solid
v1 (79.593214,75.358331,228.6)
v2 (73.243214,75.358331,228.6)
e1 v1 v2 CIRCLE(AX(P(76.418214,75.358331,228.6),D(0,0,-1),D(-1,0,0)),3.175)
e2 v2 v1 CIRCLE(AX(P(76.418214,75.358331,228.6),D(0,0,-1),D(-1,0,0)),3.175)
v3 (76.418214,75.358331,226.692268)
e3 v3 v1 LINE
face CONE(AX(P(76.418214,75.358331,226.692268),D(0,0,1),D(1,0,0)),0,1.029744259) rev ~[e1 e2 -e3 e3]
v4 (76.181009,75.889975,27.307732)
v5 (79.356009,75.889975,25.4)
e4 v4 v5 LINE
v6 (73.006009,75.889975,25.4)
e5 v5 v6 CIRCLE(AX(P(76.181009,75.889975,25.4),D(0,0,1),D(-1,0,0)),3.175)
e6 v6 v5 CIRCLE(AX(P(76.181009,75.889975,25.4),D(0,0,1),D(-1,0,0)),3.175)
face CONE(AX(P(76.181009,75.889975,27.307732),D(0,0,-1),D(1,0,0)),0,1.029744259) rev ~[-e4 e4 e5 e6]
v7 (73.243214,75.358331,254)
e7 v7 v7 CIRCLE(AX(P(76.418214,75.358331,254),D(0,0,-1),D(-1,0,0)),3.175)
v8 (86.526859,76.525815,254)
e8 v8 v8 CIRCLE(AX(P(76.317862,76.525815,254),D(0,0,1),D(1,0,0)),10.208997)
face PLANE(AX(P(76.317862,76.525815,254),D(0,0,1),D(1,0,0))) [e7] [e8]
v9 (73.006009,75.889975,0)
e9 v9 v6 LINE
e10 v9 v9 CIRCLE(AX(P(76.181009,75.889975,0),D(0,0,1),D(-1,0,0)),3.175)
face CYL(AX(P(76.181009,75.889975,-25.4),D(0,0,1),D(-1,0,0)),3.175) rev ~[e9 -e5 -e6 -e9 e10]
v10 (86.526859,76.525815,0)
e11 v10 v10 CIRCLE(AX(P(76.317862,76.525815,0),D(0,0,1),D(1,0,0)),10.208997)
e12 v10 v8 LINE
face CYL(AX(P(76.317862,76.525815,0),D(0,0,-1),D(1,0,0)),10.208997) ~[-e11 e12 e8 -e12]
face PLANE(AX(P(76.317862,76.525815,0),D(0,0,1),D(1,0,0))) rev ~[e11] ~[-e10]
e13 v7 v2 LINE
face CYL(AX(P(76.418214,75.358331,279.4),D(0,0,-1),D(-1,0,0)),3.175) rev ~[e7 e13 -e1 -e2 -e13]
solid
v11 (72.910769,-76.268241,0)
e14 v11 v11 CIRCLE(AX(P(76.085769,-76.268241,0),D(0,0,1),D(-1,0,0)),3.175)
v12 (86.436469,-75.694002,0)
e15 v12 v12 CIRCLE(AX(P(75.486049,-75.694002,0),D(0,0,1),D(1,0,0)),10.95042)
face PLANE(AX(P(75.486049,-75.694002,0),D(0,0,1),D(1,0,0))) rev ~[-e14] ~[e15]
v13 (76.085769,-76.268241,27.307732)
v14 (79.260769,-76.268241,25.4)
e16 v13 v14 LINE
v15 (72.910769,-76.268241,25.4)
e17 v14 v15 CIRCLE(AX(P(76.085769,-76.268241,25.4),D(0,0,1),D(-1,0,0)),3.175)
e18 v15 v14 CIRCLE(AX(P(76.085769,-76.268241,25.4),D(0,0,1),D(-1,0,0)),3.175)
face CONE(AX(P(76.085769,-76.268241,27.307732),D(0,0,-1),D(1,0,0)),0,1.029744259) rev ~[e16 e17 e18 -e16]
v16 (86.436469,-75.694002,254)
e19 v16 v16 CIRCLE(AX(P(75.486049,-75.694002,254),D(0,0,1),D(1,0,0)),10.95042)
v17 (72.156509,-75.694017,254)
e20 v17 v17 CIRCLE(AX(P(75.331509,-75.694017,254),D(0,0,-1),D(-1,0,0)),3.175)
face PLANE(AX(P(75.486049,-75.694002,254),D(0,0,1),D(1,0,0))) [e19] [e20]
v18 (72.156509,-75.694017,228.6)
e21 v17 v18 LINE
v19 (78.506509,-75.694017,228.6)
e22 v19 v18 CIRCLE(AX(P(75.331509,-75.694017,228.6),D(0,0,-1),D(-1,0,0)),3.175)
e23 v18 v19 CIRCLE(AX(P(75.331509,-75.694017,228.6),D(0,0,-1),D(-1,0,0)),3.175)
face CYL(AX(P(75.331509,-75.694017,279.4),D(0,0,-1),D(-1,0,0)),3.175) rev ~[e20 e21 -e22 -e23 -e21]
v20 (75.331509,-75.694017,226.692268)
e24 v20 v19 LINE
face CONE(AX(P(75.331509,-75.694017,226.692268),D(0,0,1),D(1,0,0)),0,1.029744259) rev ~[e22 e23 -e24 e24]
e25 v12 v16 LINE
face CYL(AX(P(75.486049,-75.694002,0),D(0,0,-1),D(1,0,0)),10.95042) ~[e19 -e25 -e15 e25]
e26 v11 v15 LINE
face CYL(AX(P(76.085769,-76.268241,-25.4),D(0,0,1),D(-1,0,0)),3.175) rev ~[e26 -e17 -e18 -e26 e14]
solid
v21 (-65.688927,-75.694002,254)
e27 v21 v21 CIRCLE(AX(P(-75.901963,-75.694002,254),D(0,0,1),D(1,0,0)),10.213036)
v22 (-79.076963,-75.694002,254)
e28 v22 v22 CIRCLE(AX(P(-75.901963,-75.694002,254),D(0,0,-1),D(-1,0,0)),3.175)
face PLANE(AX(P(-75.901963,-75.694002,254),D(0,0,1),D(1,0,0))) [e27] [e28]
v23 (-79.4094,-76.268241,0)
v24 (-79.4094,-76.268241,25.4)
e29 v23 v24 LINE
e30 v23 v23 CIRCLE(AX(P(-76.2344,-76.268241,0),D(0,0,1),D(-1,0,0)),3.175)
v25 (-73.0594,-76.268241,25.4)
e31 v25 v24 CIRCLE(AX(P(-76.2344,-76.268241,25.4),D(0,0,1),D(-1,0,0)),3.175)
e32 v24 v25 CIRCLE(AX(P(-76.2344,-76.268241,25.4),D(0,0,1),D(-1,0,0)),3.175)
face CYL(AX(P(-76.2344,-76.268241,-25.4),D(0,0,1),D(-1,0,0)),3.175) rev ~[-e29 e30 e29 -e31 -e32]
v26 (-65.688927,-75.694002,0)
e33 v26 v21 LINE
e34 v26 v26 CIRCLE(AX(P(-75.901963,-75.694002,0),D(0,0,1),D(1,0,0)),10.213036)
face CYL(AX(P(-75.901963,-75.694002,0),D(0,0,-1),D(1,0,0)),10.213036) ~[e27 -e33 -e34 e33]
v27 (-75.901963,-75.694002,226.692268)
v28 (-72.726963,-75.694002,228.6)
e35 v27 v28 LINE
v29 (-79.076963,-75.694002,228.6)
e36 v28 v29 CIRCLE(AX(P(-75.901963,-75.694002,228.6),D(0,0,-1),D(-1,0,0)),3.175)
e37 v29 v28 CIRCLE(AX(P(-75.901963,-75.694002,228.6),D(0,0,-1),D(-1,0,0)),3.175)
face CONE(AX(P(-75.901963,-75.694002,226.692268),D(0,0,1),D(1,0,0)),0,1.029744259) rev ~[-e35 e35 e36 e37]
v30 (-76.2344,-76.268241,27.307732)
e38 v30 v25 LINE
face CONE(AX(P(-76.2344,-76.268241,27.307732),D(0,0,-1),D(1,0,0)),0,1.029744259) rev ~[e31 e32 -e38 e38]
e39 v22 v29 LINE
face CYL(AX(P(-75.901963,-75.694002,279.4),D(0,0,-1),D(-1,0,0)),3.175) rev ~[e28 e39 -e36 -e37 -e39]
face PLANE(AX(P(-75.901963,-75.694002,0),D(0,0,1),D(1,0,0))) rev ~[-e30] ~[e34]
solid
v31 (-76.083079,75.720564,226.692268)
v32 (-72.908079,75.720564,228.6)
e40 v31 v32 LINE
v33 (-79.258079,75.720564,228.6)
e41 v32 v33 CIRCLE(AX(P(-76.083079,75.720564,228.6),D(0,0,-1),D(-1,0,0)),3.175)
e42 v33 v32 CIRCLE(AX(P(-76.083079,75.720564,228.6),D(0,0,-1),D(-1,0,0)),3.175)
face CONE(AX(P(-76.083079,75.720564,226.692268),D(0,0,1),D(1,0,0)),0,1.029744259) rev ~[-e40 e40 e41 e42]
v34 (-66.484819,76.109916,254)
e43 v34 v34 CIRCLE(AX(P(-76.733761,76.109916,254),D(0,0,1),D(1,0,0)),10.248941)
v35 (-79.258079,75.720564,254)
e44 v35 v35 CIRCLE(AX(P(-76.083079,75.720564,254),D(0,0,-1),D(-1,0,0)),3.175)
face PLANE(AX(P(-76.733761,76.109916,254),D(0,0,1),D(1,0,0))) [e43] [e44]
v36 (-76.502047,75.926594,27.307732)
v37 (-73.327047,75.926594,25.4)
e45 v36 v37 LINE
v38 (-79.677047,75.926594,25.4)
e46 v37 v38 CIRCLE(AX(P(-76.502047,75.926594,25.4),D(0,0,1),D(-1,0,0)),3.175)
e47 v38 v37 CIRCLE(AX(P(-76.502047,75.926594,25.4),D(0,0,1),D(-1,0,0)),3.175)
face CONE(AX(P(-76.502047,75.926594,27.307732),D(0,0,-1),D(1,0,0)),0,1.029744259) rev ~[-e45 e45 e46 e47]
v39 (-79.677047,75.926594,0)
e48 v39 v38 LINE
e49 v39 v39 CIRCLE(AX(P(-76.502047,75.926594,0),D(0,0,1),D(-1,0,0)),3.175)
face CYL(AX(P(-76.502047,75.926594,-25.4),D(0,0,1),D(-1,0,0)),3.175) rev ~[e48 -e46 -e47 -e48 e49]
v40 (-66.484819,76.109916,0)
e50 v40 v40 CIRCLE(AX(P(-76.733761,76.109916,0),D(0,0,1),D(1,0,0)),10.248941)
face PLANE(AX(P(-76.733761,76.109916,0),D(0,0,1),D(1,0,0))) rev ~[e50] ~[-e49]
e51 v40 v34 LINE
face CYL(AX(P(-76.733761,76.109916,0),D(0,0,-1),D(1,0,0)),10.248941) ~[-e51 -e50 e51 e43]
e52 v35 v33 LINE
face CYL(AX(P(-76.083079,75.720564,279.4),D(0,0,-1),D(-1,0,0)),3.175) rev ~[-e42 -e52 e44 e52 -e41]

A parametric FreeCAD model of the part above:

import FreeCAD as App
import Part
import Sketcher

V = App.Vector
Q = App.Units.Quantity

doc = App.newDocument("Part")
body = doc.addObject("PartDesign::Body", "Body")

# Sketch on XY plane
sketch1 = doc.addObject("Sketcher::SketchObject", "Sketch")
body.addObject(sketch1)
sketch1.AttachmentSupport = (doc.XY_Plane, [""])
sketch1.MapMode = "FlatFace"
sketch1.addGeometry(Part.Circle(V(-76.733761, 76.109916, 0), V(0, 0, 1), 10.248941), False)
sketch1.addConstraint([
    Sketcher.Constraint("Diameter", 0, 20.497882),
    Sketcher.Constraint("DistanceX", 0, 3, -1, 1, 76.733761),
    Sketcher.Constraint("DistanceY", -1, 1, 0, 3, 76.109916),
])
pad1 = doc.addObject("PartDesign::Pad", "Pad")
body.addObject(pad1)
pad1.Profile = sketch1
pad1.Length = Q("10 in")

# Sketch on XY plane
sketch2 = doc.addObject("Sketcher::SketchObject", "Sketch001")
body.addObject(sketch2)
sketch2.AttachmentSupport = (doc.XY_Plane, [""])
sketch2.MapMode = "FlatFace"
sketch2.AttachmentOffset = App.Placement(V(0, 0, 10 * 25.4), App.Rotation())
sketch2.addGeometry([
    Part.Circle(V(-76.083079, 75.720564, 0), V(0, 0, 1), 3.175),
    Part.Circle(V(76.418214, 75.358331, 0), V(0, 0, 1), 3.175),
    Part.Circle(V(75.331509, -75.694017, 0), V(0, 0, 1), 3.175),
    Part.Circle(V(-75.901963, -75.694002, 0), V(0, 0, 1), 3.175),
], False)
sketch2.addConstraint([
    Sketcher.Constraint("Equal", 0, 1),
    Sketcher.Constraint("Equal", 1, 2),
    Sketcher.Constraint("Equal", 2, 3),
    Sketcher.Constraint("Diameter", 0, Q("0.25 in")),
    Sketcher.Constraint("DistanceX", 0, 3, -1, 1, 76.083079),
    Sketcher.Constraint("DistanceY", -1, 1, 1, 3, 75.358331),
    Sketcher.Constraint("DistanceX", -1, 1, 2, 3, 75.331509),
    Sketcher.Constraint("DistanceY", 2, 3, 1, 3, 151.052348),
    Sketcher.Constraint("DistanceY", 2, 3, 0, 3, 151.414581),
    Sketcher.Constraint("DistanceX", 3, 3, 2, 3, 151.233472),
    Sketcher.Constraint("DistanceX", -1, 1, 1, 3, 76.418214),
    Sketcher.Constraint("DistanceY", 3, 3, -1, 1, 75.694002),
])
doc.recompute()
hole = doc.addObject("PartDesign::Hole", "Hole")
body.addObject(hole)
hole.Profile = sketch2
hole.ThreadType = "None"
hole.Diameter = Q("0.25 in")
hole.DepthType = "Dimension"
hole.Depth = Q("1 in")
hole.DrillPoint = "Angled"
hole.DrillPointAngle = 118

# Sketch on XY plane
sketch3 = doc.addObject("Sketcher::SketchObject", "Sketch002")
body.addObject(sketch3)
sketch3.AttachmentSupport = (doc.XY_Plane, [""])
sketch3.MapMode = "FlatFace"
sketch3.addGeometry([
    Part.Circle(V(-76.2344, -76.268241, 0), V(0, 0, 1), 3.175),
    Part.Circle(V(76.085769, -76.268241, 0), V(0, 0, 1), 3.175),
    Part.Circle(V(76.181009, 75.889975, 0), V(0, 0, 1), 3.175),
    Part.Circle(V(-76.502047, 75.926594, 0), V(0, 0, 1), 3.175),
], False)
sketch3.addConstraint([
    Sketcher.Constraint("Equal", 0, 1),
    Sketcher.Constraint("Equal", 1, 2),
    Sketcher.Constraint("Equal", 2, 3),
    Sketcher.Constraint("Horizontal", 0, 3, 1, 3),
    Sketcher.Constraint("Diameter", 0, Q("0.25 in")),
    Sketcher.Constraint("DistanceX", 0, 3, -1, 1, 76.2344),
    Sketcher.Constraint("DistanceY", 0, 3, -1, 1, 76.268241),
    Sketcher.Constraint("DistanceX", -1, 1, 1, 3, 76.085769),
    Sketcher.Constraint("DistanceX", -1, 1, 2, 3, 76.181009),
    Sketcher.Constraint("DistanceY", 2, 3, 3, 3, 0.03662),
    Sketcher.Constraint("DistanceY", -1, 1, 2, 3, 75.889975),
    Sketcher.Constraint("DistanceX", 3, 3, -1, 1, 76.502047),
])
doc.recompute()
hole2 = doc.addObject("PartDesign::Hole", "Hole001")
body.addObject(hole2)
hole2.Profile = sketch3
hole2.ThreadType = "None"
hole2.Diameter = Q("0.25 in")
hole2.DepthType = "Dimension"
hole2.Depth = Q("1 in")
hole2.DrillPoint = "Angled"
hole2.DrillPointAngle = 118
hole2.Reversed = True
body2 = doc.addObject("PartDesign::Body", "Body001")

# Sketch on XY plane
sketch4 = doc.addObject("Sketcher::SketchObject", "Sketch003")
body2.addObject(sketch4)
sketch4.AttachmentSupport = (doc.getObject("XY_Plane001"), [""])
sketch4.MapMode = "FlatFace"
sketch4.addGeometry(Part.Circle(V(76.317862, 76.525815, 0), V(0, 0, 1), 10.208997), False)
sketch4.addConstraint([
    Sketcher.Constraint("Diameter", 0, 20.417994),
    Sketcher.Constraint("DistanceX", -1, 1, 0, 3, 76.317862),
    Sketcher.Constraint("DistanceY", -1, 1, 0, 3, 76.525815),
])
pad2 = doc.addObject("PartDesign::Pad", "Pad001")
body2.addObject(pad2)
pad2.Profile = sketch4
pad2.Length = Q("10 in")

# Sketch on XY plane
sketch5 = doc.addObject("Sketcher::SketchObject", "Sketch004")
body2.addObject(sketch5)
sketch5.AttachmentSupport = (doc.getObject("XY_Plane001"), [""])
sketch5.MapMode = "FlatFace"
sketch5.AttachmentOffset = App.Placement(V(0, 0, 10 * 25.4), App.Rotation())
sketch5.addGeometry([
    Part.Circle(V(-76.083079, 75.720564, 0), V(0, 0, 1), 3.175),
    Part.Circle(V(76.418214, 75.358331, 0), V(0, 0, 1), 3.175),
    Part.Circle(V(75.331509, -75.694017, 0), V(0, 0, 1), 3.175),
    Part.Circle(V(-75.901963, -75.694002, 0), V(0, 0, 1), 3.175),
], False)
sketch5.addConstraint([
    Sketcher.Constraint("Equal", 0, 1),
    Sketcher.Constraint("Equal", 1, 2),
    Sketcher.Constraint("Equal", 2, 3),
    Sketcher.Constraint("Diameter", 0, Q("0.25 in")),
    Sketcher.Constraint("DistanceX", 0, 3, -1, 1, 76.083079),
    Sketcher.Constraint("DistanceY", -1, 1, 1, 3, 75.358331),
    Sketcher.Constraint("DistanceX", -1, 1, 2, 3, 75.331509),
    Sketcher.Constraint("DistanceY", 2, 3, 1, 3, 151.052348),
    Sketcher.Constraint("DistanceY", 2, 3, 0, 3, 151.414581),
    Sketcher.Constraint("DistanceX", 3, 3, 2, 3, 151.233472),
    Sketcher.Constraint("DistanceX", -1, 1, 1, 3, 76.418214),
    Sketcher.Constraint("DistanceY", 3, 3, -1, 1, 75.694002),
])
doc.recompute()
hole3 = doc.addObject("PartDesign::Hole", "Hole002")
body2.addObject(hole3)
hole3.Profile = sketch5
hole3.ThreadType = "None"
hole3.Diameter = Q("0.25 in")
hole3.DepthType = "Dimension"
hole3.Depth = Q("1 in")
hole3.DrillPoint = "Angled"
hole3.DrillPointAngle = 118

# Sketch on XY plane
sketch6 = doc.addObject("Sketcher::SketchObject", "Sketch005")
body2.addObject(sketch6)
sketch6.AttachmentSupport = (doc.getObject("XY_Plane001"), [""])
sketch6.MapMode = "FlatFace"
sketch6.addGeometry([
    Part.Circle(V(-76.2344, -76.268241, 0), V(0, 0, 1), 3.175),
    Part.Circle(V(76.085769, -76.268241, 0), V(0, 0, 1), 3.175),
    Part.Circle(V(76.181009, 75.889975, 0), V(0, 0, 1), 3.175),
    Part.Circle(V(-76.502047, 75.926594, 0), V(0, 0, 1), 3.175),
], False)
sketch6.addConstraint([
    Sketcher.Constraint("Equal", 0, 1),
    Sketcher.Constraint("Equal", 1, 2),
    Sketcher.Constraint("Equal", 2, 3),
    Sketcher.Constraint("Horizontal", 0, 3, 1, 3),
    Sketcher.Constraint("Diameter", 0, Q("0.25 in")),
    Sketcher.Constraint("DistanceX", 0, 3, -1, 1, 76.2344),
    Sketcher.Constraint("DistanceY", 0, 3, -1, 1, 76.268241),
    Sketcher.Constraint("DistanceX", -1, 1, 1, 3, 76.085769),
    Sketcher.Constraint("DistanceX", -1, 1, 2, 3, 76.181009),
    Sketcher.Constraint("DistanceY", 2, 3, 3, 3, 0.03662),
    Sketcher.Constraint("DistanceY", -1, 1, 2, 3, 75.889975),
    Sketcher.Constraint("DistanceX", 3, 3, -1, 1, 76.502047),
])
doc.recompute()
hole4 = doc.addObject("PartDesign::Hole", "Hole003")
body2.addObject(hole4)
hole4.Profile = sketch6
hole4.ThreadType = "None"
hole4.Diameter = Q("0.25 in")
hole4.DepthType = "Dimension"
hole4.Depth = Q("1 in")
hole4.DrillPoint = "Angled"
hole4.DrillPointAngle = 118
hole4.Reversed = True
body3 = doc.addObject("PartDesign::Body", "Body002")

# Sketch on XY plane
sketch7 = doc.addObject("Sketcher::SketchObject", "Sketch006")
body3.addObject(sketch7)
sketch7.AttachmentSupport = (doc.getObject("XY_Plane002"), [""])
sketch7.MapMode = "FlatFace"
sketch7.addGeometry(Part.Circle(V(75.486049, -75.694002, 0), V(0, 0, 1), 10.95042), False)
sketch7.addConstraint([
    Sketcher.Constraint("Diameter", 0, 21.900839),
    Sketcher.Constraint("DistanceX", -1, 1, 0, 3, 75.486049),
    Sketcher.Constraint("DistanceY", 0, 3, -1, 1, 75.694002),
])
pad3 = doc.addObject("PartDesign::Pad", "Pad002")
body3.addObject(pad3)
pad3.Profile = sketch7
pad3.Length = Q("10 in")

# Sketch on XY plane
sketch8 = doc.addObject("Sketcher::SketchObject", "Sketch007")
body3.addObject(sketch8)
sketch8.AttachmentSupport = (doc.getObject("XY_Plane002"), [""])
sketch8.MapMode = "FlatFace"
sketch8.AttachmentOffset = App.Placement(V(0, 0, 10 * 25.4), App.Rotation())
sketch8.addGeometry([
    Part.Circle(V(-76.083079, 75.720564, 0), V(0, 0, 1), 3.175),
    Part.Circle(V(76.418214, 75.358331, 0), V(0, 0, 1), 3.175),
    Part.Circle(V(75.331509, -75.694017, 0), V(0, 0, 1), 3.175),
    Part.Circle(V(-75.901963, -75.694002, 0), V(0, 0, 1), 3.175),
], False)
sketch8.addConstraint([
    Sketcher.Constraint("Equal", 0, 1),
    Sketcher.Constraint("Equal", 1, 2),
    Sketcher.Constraint("Equal", 2, 3),
    Sketcher.Constraint("Diameter", 0, Q("0.25 in")),
    Sketcher.Constraint("DistanceX", 0, 3, -1, 1, 76.083079),
    Sketcher.Constraint("DistanceY", -1, 1, 1, 3, 75.358331),
    Sketcher.Constraint("DistanceX", -1, 1, 2, 3, 75.331509),
    Sketcher.Constraint("DistanceY", 2, 3, 1, 3, 151.052348),
    Sketcher.Constraint("DistanceY", 2, 3, 0, 3, 151.414581),
    Sketcher.Constraint("DistanceX", 3, 3, 2, 3, 151.233472),
    Sketcher.Constraint("DistanceX", -1, 1, 1, 3, 76.418214),
    Sketcher.Constraint("DistanceY", 3, 3, -1, 1, 75.694002),
])
doc.recompute()
hole5 = doc.addObject("PartDesign::Hole", "Hole004")
body3.addObject(hole5)
hole5.Profile = sketch8
hole5.ThreadType = "None"
hole5.Diameter = Q("0.25 in")
hole5.DepthType = "Dimension"
hole5.Depth = Q("1 in")
hole5.DrillPoint = "Angled"
hole5.DrillPointAngle = 118

# Sketch on XY plane
sketch9 = doc.addObject("Sketcher::SketchObject", "Sketch008")
body3.addObject(sketch9)
sketch9.AttachmentSupport = (doc.getObject("XY_Plane002"), [""])
sketch9.MapMode = "FlatFace"
sketch9.addGeometry([
    Part.Circle(V(-76.2344, -76.268241, 0), V(0, 0, 1), 3.175),
    Part.Circle(V(76.085769, -76.268241, 0), V(0, 0, 1), 3.175),
    Part.Circle(V(76.181009, 75.889975, 0), V(0, 0, 1), 3.175),
    Part.Circle(V(-76.502047, 75.926594, 0), V(0, 0, 1), 3.175),
], False)
sketch9.addConstraint([
    Sketcher.Constraint("Equal", 0, 1),
    Sketcher.Constraint("Equal", 1, 2),
    Sketcher.Constraint("Equal", 2, 3),
    Sketcher.Constraint("Horizontal", 0, 3, 1, 3),
    Sketcher.Constraint("Diameter", 0, Q("0.25 in")),
    Sketcher.Constraint("DistanceX", 0, 3, -1, 1, 76.2344),
    Sketcher.Constraint("DistanceY", 0, 3, -1, 1, 76.268241),
    Sketcher.Constraint("DistanceX", -1, 1, 1, 3, 76.085769),
    Sketcher.Constraint("DistanceX", -1, 1, 2, 3, 76.181009),
    Sketcher.Constraint("DistanceY", 2, 3, 3, 3, 0.03662),
    Sketcher.Constraint("DistanceY", -1, 1, 2, 3, 75.889975),
    Sketcher.Constraint("DistanceX", 3, 3, -1, 1, 76.502047),
])
doc.recompute()
hole6 = doc.addObject("PartDesign::Hole", "Hole005")
body3.addObject(hole6)
hole6.Profile = sketch9
hole6.ThreadType = "None"
hole6.Diameter = Q("0.25 in")
hole6.DepthType = "Dimension"
hole6.Depth = Q("1 in")
hole6.DrillPoint = "Angled"
hole6.DrillPointAngle = 118
hole6.Reversed = True
body4 = doc.addObject("PartDesign::Body", "Body003")

# Sketch on XY plane
sketch10 = doc.addObject("Sketcher::SketchObject", "Sketch009")
body4.addObject(sketch10)
sketch10.AttachmentSupport = (doc.getObject("XY_Plane003"), [""])
sketch10.MapMode = "FlatFace"
sketch10.addGeometry(Part.Circle(V(-75.901963, -75.694002, 0), V(0, 0, 1), 10.213036), False)
sketch10.addConstraint([
    Sketcher.Constraint("Diameter", 0, 20.426071),
    Sketcher.Constraint("DistanceX", 0, 3, -1, 1, 75.901963),
    Sketcher.Constraint("DistanceY", 0, 3, -1, 1, 75.694002),
])
pad4 = doc.addObject("PartDesign::Pad", "Pad003")
body4.addObject(pad4)
pad4.Profile = sketch10
pad4.Length = Q("10 in")

# Sketch on XY plane
sketch11 = doc.addObject("Sketcher::SketchObject", "Sketch010")
body4.addObject(sketch11)
sketch11.AttachmentSupport = (doc.getObject("XY_Plane003"), [""])
sketch11.MapMode = "FlatFace"
sketch11.AttachmentOffset = App.Placement(V(0, 0, 10 * 25.4), App.Rotation())
sketch11.addGeometry([
    Part.Circle(V(-76.083079, 75.720564, 0), V(0, 0, 1), 3.175),
    Part.Circle(V(76.418214, 75.358331, 0), V(0, 0, 1), 3.175),
    Part.Circle(V(75.331509, -75.694017, 0), V(0, 0, 1), 3.175),
    Part.Circle(V(-75.901963, -75.694002, 0), V(0, 0, 1), 3.175),
], False)
sketch11.addConstraint([
    Sketcher.Constraint("Equal", 0, 1),
    Sketcher.Constraint("Equal", 1, 2),
    Sketcher.Constraint("Equal", 2, 3),
    Sketcher.Constraint("Diameter", 0, Q("0.25 in")),
    Sketcher.Constraint("DistanceX", 0, 3, -1, 1, 76.083079),
    Sketcher.Constraint("DistanceY", -1, 1, 1, 3, 75.358331),
    Sketcher.Constraint("DistanceX", -1, 1, 2, 3, 75.331509),
    Sketcher.Constraint("DistanceY", 2, 3, 1, 3, 151.052348),
    Sketcher.Constraint("DistanceY", 2, 3, 0, 3, 151.414581),
    Sketcher.Constraint("DistanceX", 3, 3, 2, 3, 151.233472),
    Sketcher.Constraint("DistanceX", -1, 1, 1, 3, 76.418214),
    Sketcher.Constraint("DistanceY", 3, 3, -1, 1, 75.694002),
])
doc.recompute()
hole7 = doc.addObject("PartDesign::Hole", "Hole006")
body4.addObject(hole7)
hole7.Profile = sketch11
hole7.ThreadType = "None"
hole7.Diameter = Q("0.25 in")
hole7.DepthType = "Dimension"
hole7.Depth = Q("1 in")
hole7.DrillPoint = "Angled"
hole7.DrillPointAngle = 118

# Sketch on XY plane
sketch12 = doc.addObject("Sketcher::SketchObject", "Sketch011")
body4.addObject(sketch12)
sketch12.AttachmentSupport = (doc.getObject("XY_Plane003"), [""])
sketch12.MapMode = "FlatFace"
sketch12.addGeometry([
    Part.Circle(V(-76.2344, -76.268241, 0), V(0, 0, 1), 3.175),
    Part.Circle(V(76.085769, -76.268241, 0), V(0, 0, 1), 3.175),
    Part.Circle(V(76.181009, 75.889975, 0), V(0, 0, 1), 3.175),
    Part.Circle(V(-76.502047, 75.926594, 0), V(0, 0, 1), 3.175),
], False)
sketch12.addConstraint([
    Sketcher.Constraint("Equal", 0, 1),
    Sketcher.Constraint("Equal", 1, 2),
    Sketcher.Constraint("Equal", 2, 3),
    Sketcher.Constraint("Horizontal", 0, 3, 1, 3),
    Sketcher.Constraint("Diameter", 0, Q("0.25 in")),
    Sketcher.Constraint("DistanceX", 0, 3, -1, 1, 76.2344),
    Sketcher.Constraint("DistanceY", 0, 3, -1, 1, 76.268241),
    Sketcher.Constraint("DistanceX", -1, 1, 1, 3, 76.085769),
    Sketcher.Constraint("DistanceX", -1, 1, 2, 3, 76.181009),
    Sketcher.Constraint("DistanceY", 2, 3, 3, 3, 0.03662),
    Sketcher.Constraint("DistanceY", -1, 1, 2, 3, 75.889975),
    Sketcher.Constraint("DistanceX", 3, 3, -1, 1, 76.502047),
])
doc.recompute()
hole8 = doc.addObject("PartDesign::Hole", "Hole007")
body4.addObject(hole8)
hole8.Profile = sketch12
hole8.ThreadType = "None"
hole8.Diameter = Q("0.25 in")
hole8.DepthType = "Dimension"
hole8.Depth = Q("1 in")
hole8.DrillPoint = "Angled"
hole8.DrillPointAngle = 118
hole8.Reversed = True

doc.recompute()
